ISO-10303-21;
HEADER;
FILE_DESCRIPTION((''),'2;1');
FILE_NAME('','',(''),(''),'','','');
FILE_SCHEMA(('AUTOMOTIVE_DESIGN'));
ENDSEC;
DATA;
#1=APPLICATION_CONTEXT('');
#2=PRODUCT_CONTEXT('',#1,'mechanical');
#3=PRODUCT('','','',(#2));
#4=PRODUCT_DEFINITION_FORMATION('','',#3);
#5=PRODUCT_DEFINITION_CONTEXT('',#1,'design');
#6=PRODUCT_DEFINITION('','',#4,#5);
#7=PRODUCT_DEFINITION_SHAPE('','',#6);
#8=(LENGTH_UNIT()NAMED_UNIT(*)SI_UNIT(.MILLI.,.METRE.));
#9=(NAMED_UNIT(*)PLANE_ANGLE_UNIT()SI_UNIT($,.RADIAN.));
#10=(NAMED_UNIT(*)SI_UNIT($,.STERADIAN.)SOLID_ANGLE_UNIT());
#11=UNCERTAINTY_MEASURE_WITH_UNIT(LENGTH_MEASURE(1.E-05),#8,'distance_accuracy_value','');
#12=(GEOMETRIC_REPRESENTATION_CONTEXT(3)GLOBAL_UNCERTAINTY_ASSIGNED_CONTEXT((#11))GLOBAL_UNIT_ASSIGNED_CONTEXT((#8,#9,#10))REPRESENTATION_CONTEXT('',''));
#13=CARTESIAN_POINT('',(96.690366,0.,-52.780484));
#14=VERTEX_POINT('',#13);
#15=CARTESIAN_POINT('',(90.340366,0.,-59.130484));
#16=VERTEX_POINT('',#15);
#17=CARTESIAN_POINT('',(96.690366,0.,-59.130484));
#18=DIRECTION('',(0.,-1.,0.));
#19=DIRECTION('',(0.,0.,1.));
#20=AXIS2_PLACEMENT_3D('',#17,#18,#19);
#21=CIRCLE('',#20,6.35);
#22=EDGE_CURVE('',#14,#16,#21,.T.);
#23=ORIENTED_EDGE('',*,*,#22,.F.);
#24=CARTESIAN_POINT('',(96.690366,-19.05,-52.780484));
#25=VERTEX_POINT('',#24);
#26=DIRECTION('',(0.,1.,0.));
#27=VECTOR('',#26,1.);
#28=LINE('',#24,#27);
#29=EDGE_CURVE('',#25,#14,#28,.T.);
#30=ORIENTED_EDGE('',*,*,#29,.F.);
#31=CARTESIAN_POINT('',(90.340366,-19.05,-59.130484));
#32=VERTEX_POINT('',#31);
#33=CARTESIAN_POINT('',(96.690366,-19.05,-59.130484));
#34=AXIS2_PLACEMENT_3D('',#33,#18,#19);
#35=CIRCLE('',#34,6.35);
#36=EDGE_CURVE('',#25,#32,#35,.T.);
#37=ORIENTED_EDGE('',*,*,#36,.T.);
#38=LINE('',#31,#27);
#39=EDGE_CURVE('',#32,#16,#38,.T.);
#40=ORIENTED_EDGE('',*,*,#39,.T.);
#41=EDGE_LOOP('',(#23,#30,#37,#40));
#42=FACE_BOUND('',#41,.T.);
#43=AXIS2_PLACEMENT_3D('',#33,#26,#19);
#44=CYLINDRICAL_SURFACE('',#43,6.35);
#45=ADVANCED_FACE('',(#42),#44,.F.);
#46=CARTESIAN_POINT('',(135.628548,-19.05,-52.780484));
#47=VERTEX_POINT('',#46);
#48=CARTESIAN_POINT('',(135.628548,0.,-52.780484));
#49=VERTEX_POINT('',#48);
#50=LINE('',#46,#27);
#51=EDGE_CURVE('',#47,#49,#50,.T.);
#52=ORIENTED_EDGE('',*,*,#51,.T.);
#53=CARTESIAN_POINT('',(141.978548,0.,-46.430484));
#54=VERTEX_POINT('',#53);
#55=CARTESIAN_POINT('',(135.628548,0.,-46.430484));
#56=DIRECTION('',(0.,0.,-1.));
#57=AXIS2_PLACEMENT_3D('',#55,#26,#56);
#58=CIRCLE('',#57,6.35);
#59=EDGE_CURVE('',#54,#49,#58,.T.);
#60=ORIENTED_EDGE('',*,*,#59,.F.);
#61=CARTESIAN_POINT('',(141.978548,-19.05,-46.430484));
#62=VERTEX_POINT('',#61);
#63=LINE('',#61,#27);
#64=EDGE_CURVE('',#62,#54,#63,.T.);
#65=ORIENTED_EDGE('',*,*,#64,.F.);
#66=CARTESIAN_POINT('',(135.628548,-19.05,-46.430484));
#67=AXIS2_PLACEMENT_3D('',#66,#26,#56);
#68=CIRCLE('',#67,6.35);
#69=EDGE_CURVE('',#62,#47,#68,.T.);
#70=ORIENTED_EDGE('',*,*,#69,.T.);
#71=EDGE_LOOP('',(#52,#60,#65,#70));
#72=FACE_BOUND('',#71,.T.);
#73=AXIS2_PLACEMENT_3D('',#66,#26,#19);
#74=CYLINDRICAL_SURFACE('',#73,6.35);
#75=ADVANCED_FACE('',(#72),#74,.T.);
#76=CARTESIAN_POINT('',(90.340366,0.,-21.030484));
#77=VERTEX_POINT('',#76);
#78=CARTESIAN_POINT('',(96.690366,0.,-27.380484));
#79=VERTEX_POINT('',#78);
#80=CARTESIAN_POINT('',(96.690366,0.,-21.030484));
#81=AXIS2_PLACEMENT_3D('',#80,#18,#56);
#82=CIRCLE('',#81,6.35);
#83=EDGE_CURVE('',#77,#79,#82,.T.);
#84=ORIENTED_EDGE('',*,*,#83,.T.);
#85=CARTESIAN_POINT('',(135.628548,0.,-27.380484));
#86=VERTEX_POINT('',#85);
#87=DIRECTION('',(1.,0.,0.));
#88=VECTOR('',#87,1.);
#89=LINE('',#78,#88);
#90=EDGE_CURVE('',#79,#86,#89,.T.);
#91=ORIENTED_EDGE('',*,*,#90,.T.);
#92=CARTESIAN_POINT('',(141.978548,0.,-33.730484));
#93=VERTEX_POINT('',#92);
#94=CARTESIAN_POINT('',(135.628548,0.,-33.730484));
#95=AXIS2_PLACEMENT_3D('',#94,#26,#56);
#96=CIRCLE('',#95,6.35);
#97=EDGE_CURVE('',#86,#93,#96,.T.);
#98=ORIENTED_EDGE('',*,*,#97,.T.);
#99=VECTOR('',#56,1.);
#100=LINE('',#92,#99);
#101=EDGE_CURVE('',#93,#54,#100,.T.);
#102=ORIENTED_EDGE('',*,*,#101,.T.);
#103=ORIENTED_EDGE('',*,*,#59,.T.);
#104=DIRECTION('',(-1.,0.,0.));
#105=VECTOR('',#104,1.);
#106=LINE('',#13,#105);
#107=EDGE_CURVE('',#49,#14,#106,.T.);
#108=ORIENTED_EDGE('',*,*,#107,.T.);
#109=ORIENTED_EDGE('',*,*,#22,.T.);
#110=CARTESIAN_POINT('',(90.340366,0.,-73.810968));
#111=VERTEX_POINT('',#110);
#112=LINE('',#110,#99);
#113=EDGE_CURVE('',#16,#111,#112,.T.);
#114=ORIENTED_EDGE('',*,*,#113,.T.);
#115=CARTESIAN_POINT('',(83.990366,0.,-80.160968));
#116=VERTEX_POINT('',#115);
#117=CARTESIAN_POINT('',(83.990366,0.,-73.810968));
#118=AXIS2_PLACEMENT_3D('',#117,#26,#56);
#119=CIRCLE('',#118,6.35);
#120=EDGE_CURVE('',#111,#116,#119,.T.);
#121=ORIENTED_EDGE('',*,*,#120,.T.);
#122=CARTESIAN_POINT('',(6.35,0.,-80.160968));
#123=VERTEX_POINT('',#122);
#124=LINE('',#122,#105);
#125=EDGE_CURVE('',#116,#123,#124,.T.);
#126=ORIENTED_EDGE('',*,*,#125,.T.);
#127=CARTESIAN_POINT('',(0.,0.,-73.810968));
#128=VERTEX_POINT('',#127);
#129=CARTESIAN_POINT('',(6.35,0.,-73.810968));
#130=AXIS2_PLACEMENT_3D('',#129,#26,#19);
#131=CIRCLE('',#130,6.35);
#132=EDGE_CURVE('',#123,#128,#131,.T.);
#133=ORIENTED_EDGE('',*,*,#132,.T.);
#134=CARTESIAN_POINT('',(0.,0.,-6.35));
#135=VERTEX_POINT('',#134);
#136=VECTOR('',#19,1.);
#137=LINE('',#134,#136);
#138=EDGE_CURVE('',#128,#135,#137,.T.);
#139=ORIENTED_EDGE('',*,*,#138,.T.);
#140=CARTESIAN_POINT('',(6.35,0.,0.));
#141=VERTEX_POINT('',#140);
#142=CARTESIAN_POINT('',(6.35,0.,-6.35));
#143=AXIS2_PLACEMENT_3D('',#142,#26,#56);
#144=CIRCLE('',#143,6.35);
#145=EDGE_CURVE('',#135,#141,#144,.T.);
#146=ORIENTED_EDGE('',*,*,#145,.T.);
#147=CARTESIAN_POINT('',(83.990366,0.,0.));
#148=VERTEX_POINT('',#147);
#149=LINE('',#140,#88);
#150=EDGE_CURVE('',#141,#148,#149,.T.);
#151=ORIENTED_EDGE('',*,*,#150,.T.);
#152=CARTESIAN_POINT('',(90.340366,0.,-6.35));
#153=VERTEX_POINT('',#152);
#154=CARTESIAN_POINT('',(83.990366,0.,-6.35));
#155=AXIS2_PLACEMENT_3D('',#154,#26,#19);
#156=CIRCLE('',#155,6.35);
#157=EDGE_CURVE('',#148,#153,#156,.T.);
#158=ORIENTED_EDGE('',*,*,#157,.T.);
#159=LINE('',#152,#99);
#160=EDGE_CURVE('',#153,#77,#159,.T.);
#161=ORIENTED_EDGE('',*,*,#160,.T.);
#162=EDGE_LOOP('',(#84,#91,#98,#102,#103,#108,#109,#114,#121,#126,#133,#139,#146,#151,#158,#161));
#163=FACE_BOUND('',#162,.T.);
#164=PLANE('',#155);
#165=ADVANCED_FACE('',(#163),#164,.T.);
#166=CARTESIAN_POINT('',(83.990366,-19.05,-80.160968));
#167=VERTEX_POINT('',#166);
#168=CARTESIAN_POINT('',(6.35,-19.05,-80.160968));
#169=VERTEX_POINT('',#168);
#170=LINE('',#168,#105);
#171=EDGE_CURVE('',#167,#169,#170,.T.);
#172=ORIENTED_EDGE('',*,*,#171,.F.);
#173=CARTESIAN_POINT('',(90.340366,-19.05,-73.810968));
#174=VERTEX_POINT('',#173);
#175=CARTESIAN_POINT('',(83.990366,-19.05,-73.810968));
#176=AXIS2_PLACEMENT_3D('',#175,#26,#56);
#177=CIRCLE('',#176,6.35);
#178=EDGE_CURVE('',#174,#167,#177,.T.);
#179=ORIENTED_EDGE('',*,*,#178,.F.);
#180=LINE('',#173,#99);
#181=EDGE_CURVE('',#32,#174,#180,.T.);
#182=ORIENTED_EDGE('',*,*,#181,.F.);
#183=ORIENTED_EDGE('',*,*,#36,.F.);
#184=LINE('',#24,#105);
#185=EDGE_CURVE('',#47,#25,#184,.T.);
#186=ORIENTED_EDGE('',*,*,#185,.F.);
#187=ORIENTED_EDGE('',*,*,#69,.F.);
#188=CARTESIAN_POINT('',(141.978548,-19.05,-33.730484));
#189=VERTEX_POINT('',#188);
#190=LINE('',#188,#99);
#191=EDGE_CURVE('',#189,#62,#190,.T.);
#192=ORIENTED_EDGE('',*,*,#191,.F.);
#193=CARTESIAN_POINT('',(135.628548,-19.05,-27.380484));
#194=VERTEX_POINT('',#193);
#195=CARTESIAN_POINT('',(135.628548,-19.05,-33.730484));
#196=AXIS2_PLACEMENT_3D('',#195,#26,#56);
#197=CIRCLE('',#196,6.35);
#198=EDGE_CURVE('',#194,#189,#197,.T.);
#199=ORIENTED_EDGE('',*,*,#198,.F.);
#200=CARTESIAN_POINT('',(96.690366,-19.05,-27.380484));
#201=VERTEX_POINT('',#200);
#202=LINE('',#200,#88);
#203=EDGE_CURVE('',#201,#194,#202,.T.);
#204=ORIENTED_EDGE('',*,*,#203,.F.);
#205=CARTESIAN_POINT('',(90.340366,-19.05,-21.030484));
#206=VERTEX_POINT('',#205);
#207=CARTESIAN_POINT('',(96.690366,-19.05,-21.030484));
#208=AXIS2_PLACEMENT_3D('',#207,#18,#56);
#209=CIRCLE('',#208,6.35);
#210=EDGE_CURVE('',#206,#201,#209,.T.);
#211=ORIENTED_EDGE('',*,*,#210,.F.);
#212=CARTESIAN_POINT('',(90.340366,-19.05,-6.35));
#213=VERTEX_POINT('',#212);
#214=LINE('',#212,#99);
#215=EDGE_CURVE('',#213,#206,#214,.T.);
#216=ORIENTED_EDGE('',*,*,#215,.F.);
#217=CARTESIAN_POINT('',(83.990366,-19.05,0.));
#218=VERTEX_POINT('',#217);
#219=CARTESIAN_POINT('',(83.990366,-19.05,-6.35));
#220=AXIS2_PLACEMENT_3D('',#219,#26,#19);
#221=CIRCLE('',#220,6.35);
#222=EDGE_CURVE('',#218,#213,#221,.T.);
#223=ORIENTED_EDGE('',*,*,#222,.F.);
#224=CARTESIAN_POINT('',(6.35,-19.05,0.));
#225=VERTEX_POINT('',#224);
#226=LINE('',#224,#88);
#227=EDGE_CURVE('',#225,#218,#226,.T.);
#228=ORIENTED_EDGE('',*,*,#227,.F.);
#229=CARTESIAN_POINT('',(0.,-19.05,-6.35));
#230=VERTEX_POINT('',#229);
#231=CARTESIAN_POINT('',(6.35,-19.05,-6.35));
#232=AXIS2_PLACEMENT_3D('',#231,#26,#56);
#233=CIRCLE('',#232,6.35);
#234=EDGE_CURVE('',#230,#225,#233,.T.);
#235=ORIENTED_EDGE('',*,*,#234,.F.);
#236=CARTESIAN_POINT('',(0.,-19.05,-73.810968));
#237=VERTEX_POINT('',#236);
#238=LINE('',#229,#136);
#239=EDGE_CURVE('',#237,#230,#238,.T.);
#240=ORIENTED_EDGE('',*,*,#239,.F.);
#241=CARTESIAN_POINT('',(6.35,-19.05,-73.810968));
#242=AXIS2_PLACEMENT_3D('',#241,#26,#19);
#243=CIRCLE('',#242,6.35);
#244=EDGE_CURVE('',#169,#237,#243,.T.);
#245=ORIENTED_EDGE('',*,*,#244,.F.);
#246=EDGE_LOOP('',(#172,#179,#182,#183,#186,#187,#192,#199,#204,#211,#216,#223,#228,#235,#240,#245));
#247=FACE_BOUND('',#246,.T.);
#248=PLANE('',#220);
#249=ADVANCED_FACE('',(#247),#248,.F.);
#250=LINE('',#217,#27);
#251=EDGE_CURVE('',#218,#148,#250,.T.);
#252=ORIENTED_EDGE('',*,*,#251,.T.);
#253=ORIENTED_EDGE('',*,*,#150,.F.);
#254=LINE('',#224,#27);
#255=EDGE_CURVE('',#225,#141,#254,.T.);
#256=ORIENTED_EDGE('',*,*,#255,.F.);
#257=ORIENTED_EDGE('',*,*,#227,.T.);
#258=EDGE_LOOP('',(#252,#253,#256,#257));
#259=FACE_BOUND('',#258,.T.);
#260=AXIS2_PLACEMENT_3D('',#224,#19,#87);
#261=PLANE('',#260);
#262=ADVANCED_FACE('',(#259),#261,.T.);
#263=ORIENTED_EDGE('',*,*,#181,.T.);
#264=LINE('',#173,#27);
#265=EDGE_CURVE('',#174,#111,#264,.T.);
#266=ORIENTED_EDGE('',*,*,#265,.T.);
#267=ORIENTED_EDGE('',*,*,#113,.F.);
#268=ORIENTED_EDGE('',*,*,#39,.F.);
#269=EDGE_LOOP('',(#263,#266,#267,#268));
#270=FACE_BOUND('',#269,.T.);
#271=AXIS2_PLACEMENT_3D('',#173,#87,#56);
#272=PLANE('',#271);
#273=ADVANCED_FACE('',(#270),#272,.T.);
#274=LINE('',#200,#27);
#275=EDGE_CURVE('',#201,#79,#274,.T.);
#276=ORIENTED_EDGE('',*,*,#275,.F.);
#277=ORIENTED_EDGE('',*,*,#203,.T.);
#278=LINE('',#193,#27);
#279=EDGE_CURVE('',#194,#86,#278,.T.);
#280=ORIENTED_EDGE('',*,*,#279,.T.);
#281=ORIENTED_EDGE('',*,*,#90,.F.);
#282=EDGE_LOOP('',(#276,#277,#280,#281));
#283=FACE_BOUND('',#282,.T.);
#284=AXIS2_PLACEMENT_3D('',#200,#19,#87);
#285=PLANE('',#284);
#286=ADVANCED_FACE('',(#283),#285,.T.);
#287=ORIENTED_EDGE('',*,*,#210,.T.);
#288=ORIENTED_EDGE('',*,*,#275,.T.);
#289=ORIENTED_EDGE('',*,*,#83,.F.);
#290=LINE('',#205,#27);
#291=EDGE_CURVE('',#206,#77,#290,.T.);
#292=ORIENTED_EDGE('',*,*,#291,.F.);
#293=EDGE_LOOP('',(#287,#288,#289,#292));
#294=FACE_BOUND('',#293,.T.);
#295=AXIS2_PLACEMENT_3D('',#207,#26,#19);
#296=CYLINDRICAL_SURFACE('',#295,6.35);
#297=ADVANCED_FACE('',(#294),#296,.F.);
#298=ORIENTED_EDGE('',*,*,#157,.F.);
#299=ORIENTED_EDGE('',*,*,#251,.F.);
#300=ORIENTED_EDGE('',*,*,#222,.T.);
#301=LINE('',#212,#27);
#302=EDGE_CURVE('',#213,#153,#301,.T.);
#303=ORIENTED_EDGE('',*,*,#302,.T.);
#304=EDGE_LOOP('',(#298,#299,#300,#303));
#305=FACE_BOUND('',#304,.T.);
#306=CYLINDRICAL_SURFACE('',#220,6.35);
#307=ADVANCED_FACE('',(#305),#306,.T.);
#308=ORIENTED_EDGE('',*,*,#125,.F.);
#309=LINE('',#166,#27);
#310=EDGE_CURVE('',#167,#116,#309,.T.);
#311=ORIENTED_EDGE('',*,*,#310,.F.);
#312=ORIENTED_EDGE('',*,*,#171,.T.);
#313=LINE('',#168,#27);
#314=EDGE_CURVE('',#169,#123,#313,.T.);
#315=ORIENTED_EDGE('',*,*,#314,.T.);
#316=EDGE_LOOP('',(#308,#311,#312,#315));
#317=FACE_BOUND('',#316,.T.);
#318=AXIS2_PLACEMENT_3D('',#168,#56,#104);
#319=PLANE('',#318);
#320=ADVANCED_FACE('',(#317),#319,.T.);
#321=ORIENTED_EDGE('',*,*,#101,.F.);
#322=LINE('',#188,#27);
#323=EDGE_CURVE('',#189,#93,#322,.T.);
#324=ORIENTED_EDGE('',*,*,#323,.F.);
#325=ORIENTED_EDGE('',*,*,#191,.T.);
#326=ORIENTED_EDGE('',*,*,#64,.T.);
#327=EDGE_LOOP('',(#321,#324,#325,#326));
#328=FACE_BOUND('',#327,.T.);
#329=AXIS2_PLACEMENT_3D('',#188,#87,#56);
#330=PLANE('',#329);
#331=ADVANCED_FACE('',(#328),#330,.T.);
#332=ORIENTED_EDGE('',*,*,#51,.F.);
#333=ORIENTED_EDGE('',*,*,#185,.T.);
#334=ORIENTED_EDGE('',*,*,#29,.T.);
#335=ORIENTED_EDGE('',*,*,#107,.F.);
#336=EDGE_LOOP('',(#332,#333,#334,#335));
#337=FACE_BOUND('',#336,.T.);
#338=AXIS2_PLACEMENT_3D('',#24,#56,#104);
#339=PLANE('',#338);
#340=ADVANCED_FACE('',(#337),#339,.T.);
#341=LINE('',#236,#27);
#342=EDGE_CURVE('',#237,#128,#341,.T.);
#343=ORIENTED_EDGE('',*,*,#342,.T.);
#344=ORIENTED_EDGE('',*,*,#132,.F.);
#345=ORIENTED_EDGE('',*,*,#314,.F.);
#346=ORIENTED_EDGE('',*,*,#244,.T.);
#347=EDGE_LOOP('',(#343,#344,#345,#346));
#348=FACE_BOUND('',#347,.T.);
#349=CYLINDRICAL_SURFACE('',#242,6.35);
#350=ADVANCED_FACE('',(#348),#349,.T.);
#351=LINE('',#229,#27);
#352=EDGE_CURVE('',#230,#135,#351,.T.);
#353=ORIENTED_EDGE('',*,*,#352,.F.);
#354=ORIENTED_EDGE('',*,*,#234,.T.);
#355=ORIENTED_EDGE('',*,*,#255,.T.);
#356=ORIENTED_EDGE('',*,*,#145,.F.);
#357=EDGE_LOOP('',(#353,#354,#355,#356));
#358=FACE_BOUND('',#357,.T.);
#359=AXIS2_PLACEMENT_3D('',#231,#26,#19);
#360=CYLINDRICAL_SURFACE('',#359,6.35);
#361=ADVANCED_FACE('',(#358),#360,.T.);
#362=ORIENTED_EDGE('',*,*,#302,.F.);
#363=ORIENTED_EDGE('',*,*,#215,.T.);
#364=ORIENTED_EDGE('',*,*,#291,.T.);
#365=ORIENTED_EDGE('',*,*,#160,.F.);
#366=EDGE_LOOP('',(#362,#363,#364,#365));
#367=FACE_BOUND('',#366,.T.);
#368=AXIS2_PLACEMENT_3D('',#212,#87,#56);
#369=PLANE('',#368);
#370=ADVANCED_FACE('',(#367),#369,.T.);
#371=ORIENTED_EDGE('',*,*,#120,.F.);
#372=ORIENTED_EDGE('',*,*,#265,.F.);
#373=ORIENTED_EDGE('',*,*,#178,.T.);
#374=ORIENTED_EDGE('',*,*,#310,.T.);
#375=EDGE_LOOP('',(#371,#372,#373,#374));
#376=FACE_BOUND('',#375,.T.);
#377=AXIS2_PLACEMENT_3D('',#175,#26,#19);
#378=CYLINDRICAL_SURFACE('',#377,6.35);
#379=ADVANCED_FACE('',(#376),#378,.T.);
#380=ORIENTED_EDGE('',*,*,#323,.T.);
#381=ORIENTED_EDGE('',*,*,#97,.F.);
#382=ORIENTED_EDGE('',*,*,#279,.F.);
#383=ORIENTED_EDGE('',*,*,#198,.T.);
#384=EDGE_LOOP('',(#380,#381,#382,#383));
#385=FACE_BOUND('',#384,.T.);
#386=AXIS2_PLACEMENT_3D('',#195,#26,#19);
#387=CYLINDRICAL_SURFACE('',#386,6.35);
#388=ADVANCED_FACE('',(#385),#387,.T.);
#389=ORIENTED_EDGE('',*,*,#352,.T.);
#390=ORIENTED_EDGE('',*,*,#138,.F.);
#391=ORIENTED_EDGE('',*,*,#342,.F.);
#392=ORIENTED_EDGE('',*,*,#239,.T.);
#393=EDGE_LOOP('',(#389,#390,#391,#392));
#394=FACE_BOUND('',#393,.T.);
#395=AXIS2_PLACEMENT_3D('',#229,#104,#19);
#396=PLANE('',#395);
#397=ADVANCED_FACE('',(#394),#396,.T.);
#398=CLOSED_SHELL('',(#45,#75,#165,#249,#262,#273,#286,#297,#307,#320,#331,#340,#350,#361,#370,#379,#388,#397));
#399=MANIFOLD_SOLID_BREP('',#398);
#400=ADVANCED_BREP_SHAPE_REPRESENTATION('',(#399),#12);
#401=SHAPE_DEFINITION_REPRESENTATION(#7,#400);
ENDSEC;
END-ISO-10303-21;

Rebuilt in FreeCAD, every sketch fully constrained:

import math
import FreeCAD as App
import Part
import Sketcher
Q = App.Units.Quantity

doc = App.newDocument("Part")
body = doc.addObject("PartDesign::Body", "Body")

# Sketch on XZ plane
sketch1 = doc.addObject("Sketcher::SketchObject", "Sketch")
body.addObject(sketch1)
sketch1.AttachmentSupport = (doc.XZ_Plane, [""])
sketch1.MapMode = "FlatFace"
sketch1.addGeometry([
    Part.LineSegment(App.Vector(0, -74, 0), App.Vector(0, -6, 0)),  # 0
    Part.ArcOfCircle(Part.Circle(App.Vector(6, -6, 0), App.Vector(0, 0, 1), 6), math.radians(90), math.radians(180)),  # 1
    Part.LineSegment(App.Vector(6, 0, 0), App.Vector(84, 0, 0)),  # 2
    Part.ArcOfCircle(Part.Circle(App.Vector(84, -6, 0), App.Vector(0, 0, 1), 6), math.radians(0), math.radians(90)),  # 3
    Part.LineSegment(App.Vector(90, -6, 0), App.Vector(90, -21, 0)),  # 4
    Part.ArcOfCircle(Part.Circle(App.Vector(97, -21, 0), App.Vector(0, 0, 1), 6), math.radians(180), math.radians(270)),  # 5
    Part.LineSegment(App.Vector(97, -27, 0), App.Vector(136, -27, 0)),  # 6
    Part.ArcOfCircle(Part.Circle(App.Vector(136, -34, 0), App.Vector(0, 0, 1), 6), math.radians(0), math.radians(90)),  # 7
    Part.LineSegment(App.Vector(142, -34, 0), App.Vector(142, -46, 0)),  # 8
    Part.ArcOfCircle(Part.Circle(App.Vector(136, -46, 0), App.Vector(0, 0, 1), 6), math.radians(-90), math.radians(0)),  # 9
    Part.LineSegment(App.Vector(136, -53, 0), App.Vector(97, -53, 0)),  # 10
    Part.ArcOfCircle(Part.Circle(App.Vector(97, -59, 0), App.Vector(0, 0, 1), 6), math.radians(90), math.radians(180)),  # 11
    Part.LineSegment(App.Vector(90, -59, 0), App.Vector(90, -74, 0)),  # 12
    Part.ArcOfCircle(Part.Circle(App.Vector(84, -74, 0), App.Vector(0, 0, 1), 6), math.radians(-90), math.radians(0)),  # 13
    Part.LineSegment(App.Vector(84, -80, 0), App.Vector(6, -80, 0)),  # 14
    Part.ArcOfCircle(Part.Circle(App.Vector(6, -74, 0), App.Vector(0, 0, 1), 6), math.radians(180), math.radians(270)),  # 15
], False)
sketch1.addConstraint([
    Sketcher.Constraint("Tangent", 0, 2, 1, 2),
    Sketcher.Constraint("Tangent", 1, 1, 2, 1),
    Sketcher.Constraint("Tangent", 2, 2, 3, 2),
    Sketcher.Constraint("Tangent", 3, 1, 4, 1),
    Sketcher.Constraint("Tangent", 4, 2, 5, 1),
    Sketcher.Constraint("Tangent", 5, 2, 6, 1),
    Sketcher.Constraint("Tangent", 6, 2, 7, 2),
    Sketcher.Constraint("Tangent", 7, 1, 8, 1),
    Sketcher.Constraint("Tangent", 8, 2, 9, 2),
    Sketcher.Constraint("Tangent", 9, 1, 10, 1),
    Sketcher.Constraint("Tangent", 10, 2, 11, 1),
    Sketcher.Constraint("Tangent", 11, 2, 12, 1),
    Sketcher.Constraint("Tangent", 12, 2, 13, 2),
    Sketcher.Constraint("Tangent", 13, 1, 14, 1),
    Sketcher.Constraint("Tangent", 14, 2, 15, 2),
    Sketcher.Constraint("Tangent", 15, 1, 0, 1),
    Sketcher.Constraint("Vertical", 0),
    Sketcher.Constraint("Horizontal", 2),
    Sketcher.Constraint("Vertical", 4),
    Sketcher.Constraint("Horizontal", 6),
    Sketcher.Constraint("Vertical", 8),
    Sketcher.Constraint("Horizontal", 10),
    Sketcher.Constraint("Vertical", 12),
    Sketcher.Constraint("Horizontal", 14),
    Sketcher.Constraint("Equal", 1, 3),
    Sketcher.Constraint("Equal", 3, 5),
    Sketcher.Constraint("Equal", 5, 7),
    Sketcher.Constraint("Equal", 7, 9),
    Sketcher.Constraint("Equal", 9, 11),
    Sketcher.Constraint("Equal", 11, 13),
    Sketcher.Constraint("Equal", 13, 15),
    Sketcher.Constraint("PointOnObject", 0, 2, -2),
    Sketcher.Constraint("PointOnObject", 1, 1, -1),
    Sketcher.Constraint("Vertical", 5, 3, 11, 3),
    Sketcher.Constraint("Equal", 4, 12),
    Sketcher.Constraint("Radius", 1, Q("0.25 in")),
    Sketcher.Constraint("DistanceY", 8, 2, 8, 1, Q("0.5 in")),
    Sketcher.Constraint("DistanceX", 2, 1, 2, 2, Q("77.640366 mm")),
    Sketcher.Constraint("DistanceX", 6, 1, 6, 2, Q("38.938183 mm")),
    Sketcher.Constraint("DistanceY", 0, 1, 0, 2, Q("67.460968 mm")),
])
pad1 = doc.addObject("PartDesign::Pad", "Pad")
body.addObject(pad1)
pad1.Profile = sketch1
pad1.Length = Q("0.75 in")

doc.recompute()
